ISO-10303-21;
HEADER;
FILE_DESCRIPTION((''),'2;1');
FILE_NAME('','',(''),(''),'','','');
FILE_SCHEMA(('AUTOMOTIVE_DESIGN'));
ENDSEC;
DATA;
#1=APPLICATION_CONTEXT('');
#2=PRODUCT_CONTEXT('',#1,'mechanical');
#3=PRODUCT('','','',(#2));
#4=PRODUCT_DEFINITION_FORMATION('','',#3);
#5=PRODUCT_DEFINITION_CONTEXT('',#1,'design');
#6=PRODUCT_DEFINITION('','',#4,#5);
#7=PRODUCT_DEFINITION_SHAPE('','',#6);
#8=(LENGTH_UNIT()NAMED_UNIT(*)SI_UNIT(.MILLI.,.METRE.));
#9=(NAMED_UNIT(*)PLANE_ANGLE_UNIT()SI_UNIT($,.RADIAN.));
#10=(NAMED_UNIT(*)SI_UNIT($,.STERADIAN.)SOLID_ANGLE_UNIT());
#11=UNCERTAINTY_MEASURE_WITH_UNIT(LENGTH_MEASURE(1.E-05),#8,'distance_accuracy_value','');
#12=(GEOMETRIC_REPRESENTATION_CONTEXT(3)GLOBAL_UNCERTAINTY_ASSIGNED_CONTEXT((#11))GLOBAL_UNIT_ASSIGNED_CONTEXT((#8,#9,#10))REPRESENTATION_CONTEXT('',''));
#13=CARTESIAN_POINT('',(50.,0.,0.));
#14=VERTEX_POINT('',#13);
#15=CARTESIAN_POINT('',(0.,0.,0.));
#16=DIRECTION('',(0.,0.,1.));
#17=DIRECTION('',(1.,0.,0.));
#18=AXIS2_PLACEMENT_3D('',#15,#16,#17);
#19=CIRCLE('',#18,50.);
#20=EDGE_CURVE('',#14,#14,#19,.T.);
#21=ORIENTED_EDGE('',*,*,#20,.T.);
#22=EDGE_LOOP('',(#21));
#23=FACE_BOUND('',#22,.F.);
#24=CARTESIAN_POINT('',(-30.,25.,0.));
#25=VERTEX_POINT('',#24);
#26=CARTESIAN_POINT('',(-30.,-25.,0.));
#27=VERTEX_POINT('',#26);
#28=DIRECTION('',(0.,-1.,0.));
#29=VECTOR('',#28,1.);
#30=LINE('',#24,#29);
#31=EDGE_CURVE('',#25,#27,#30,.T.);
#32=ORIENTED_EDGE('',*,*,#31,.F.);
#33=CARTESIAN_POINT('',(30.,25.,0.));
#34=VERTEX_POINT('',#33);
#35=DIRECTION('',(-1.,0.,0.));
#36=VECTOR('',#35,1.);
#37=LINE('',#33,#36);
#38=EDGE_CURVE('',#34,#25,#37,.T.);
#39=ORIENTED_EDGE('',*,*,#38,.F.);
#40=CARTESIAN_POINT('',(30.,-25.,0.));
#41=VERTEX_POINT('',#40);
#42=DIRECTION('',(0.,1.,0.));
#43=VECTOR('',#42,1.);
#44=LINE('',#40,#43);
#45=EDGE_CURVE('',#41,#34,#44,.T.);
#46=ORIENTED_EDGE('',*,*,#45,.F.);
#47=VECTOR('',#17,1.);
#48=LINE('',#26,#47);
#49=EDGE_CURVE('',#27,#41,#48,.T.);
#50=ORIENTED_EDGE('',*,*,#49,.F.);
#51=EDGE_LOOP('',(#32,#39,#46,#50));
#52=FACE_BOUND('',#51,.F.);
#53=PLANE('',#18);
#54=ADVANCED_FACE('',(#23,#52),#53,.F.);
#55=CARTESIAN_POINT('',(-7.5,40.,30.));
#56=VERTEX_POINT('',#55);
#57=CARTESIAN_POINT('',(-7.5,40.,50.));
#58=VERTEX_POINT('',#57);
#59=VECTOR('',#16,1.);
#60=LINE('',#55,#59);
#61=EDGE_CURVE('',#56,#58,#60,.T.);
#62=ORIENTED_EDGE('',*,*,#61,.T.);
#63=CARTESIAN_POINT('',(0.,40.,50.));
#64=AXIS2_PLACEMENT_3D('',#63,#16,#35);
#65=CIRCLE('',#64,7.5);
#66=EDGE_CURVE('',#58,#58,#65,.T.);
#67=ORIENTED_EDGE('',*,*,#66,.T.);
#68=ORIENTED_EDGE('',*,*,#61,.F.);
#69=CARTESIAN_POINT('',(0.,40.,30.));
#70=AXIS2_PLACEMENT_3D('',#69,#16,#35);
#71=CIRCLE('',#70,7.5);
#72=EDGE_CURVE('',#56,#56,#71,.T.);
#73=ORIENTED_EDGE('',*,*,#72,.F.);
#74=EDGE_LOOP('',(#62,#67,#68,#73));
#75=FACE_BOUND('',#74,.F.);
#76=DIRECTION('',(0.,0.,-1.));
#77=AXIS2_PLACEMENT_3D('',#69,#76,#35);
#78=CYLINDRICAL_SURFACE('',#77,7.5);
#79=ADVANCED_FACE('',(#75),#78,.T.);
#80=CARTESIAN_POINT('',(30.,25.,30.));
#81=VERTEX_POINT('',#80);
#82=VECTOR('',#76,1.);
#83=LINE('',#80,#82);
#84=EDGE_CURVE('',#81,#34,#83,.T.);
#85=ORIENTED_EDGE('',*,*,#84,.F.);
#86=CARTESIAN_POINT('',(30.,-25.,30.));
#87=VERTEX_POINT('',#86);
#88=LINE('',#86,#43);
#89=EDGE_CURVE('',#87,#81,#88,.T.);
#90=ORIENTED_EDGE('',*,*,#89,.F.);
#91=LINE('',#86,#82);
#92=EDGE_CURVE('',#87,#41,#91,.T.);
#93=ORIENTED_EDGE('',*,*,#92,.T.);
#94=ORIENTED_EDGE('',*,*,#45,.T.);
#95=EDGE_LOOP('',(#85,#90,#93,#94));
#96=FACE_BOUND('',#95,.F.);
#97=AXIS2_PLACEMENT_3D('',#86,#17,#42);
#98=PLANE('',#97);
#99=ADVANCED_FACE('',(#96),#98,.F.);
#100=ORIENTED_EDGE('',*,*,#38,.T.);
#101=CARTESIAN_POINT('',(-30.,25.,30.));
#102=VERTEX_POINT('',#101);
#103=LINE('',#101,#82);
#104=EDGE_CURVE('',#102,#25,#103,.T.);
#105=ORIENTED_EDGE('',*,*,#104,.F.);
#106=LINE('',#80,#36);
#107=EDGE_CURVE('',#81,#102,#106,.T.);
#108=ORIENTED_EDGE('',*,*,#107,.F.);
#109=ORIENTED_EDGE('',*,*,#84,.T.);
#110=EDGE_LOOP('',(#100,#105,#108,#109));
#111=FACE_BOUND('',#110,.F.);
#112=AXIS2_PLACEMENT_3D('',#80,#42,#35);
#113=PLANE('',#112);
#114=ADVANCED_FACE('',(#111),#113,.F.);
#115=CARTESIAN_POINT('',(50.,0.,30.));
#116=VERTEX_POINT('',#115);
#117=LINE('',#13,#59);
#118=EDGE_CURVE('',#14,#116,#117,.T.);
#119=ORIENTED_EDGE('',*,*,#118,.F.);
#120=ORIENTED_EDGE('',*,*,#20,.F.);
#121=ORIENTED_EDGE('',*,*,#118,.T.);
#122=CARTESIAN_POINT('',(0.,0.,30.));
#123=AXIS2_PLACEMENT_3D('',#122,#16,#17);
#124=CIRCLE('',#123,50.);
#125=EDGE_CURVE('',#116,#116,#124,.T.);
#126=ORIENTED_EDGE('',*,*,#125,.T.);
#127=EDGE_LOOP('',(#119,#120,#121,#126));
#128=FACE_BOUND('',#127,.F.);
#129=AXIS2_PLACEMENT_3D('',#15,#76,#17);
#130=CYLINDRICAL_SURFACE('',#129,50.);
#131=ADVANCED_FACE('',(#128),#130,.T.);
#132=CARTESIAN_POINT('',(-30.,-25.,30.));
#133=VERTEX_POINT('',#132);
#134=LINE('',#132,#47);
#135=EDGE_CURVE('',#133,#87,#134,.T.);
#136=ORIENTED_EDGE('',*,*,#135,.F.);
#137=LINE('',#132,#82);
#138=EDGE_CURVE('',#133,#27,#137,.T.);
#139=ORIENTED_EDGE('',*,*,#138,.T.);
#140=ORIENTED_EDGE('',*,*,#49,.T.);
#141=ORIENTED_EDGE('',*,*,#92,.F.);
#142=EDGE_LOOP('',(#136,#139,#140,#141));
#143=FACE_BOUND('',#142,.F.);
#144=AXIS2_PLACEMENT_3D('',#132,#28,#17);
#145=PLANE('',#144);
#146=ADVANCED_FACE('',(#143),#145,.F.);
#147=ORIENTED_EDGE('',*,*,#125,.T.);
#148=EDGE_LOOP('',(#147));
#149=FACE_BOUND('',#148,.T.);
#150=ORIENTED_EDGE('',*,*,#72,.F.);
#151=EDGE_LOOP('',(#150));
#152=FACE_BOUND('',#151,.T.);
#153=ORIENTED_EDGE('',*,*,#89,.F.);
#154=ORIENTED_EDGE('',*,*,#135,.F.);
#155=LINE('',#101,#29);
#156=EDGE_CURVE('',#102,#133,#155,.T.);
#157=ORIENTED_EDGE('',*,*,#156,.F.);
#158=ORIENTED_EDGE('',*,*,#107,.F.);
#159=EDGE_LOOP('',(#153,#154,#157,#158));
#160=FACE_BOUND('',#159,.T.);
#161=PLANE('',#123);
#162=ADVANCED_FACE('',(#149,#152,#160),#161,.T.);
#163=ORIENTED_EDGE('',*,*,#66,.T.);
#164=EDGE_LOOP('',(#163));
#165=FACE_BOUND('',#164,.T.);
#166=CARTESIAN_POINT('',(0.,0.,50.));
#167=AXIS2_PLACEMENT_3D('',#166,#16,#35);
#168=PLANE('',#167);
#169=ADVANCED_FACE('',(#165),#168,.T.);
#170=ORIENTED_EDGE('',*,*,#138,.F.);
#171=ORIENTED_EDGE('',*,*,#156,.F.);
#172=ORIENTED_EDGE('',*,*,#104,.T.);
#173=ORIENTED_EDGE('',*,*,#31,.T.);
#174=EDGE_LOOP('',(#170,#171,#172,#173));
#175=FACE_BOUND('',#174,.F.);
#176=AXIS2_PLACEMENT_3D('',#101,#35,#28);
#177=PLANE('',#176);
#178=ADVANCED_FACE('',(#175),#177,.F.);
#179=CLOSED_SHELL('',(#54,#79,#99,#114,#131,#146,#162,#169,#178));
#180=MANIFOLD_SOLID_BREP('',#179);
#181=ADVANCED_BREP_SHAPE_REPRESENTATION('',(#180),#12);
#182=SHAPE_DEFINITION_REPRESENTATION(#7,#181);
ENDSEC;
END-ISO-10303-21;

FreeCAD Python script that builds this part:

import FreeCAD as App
import Part
import Sketcher
from FreeCAD import Vector


def add_polygon(sketch, points):
    """Adds a closed chain of lines whose ends are joined by coincident constraints."""
    first, n = sketch.GeometryCount, len(points)
    for a, b in zip(points, points[1:] + points[:1]):
        sketch.addGeometry(Part.LineSegment(App.Vector(*a, 0), App.Vector(*b, 0)), False)
    for i in range(n):
        sketch.addConstraint(Sketcher.Constraint("Coincident", first + i, 2, first + (i + 1) % n, 1))

doc = App.newDocument("Part")
params = doc.addObject("Spreadsheet::Sheet", "Params")
for row, (alias, value) in enumerate([
    ("sketch1_diameter", "100 mm"),
    ("pad1_length", "30 mm"),
    ("sketch2_width", "60 mm"),
    ("sketch2_height", "50 mm"),
    ("pocket1_length", "30 mm"),
    ("sketch3_diameter", "15 mm"),
    ("pad2_length", "20 mm"),
], start=1):
    params.set(f"A{row}", alias)
    params.set(f"B{row}", "=" + value)
    params.setAlias(f"B{row}", alias)

body = doc.addObject("PartDesign::Body", "Body")

sketch1 = body.newObject("Sketcher::SketchObject", "Sketch")
sketch1.AttachmentSupport = (doc.getObject("XY_Plane"), [""])
sketch1.MapMode = "FlatFace"
sketch1.addGeometry(Part.Circle(Vector(0, 0, 0), Vector(0, 0, 1), 50), False)
sketch1.addConstraint([
    Sketcher.Constraint("Coincident", 0, 3, -1, 1),
    Sketcher.Constraint("Diameter", 0, 100.0),
])
sketch1.setExpression("Constraints[1]", "Params.sketch1_diameter")
pad1 = body.newObject("PartDesign::Pad", "Pad")
pad1.Profile = sketch1
pad1.setExpression("Length", "Params.pad1_length")

sketch2 = body.newObject("Sketcher::SketchObject", "Sketch001")
sketch2.AttachmentSupport = (doc.getObject("XY_Plane"), [""])
sketch2.MapMode = "FlatFace"
sketch2.AttachmentOffset = App.Placement(Vector(0, 0, 30), App.Rotation())
add_polygon(sketch2, [(-30, 25), (-30, -25), (30, -25), (30, 25)])
sketch2.addConstraint([
    Sketcher.Constraint("Vertical", 0),
    Sketcher.Constraint("Horizontal", 1),
    Sketcher.Constraint("Vertical", 2),
    Sketcher.Constraint("Horizontal", 3),
    Sketcher.Constraint("Symmetric", 0, 2, 2, 2, -1, 1),
    Sketcher.Constraint("DistanceX", 1, 1, 1, 2, 60.0),
    Sketcher.Constraint("DistanceY", 0, 2, 0, 1, 50.0),
])
sketch2.setExpression("Constraints[9]", "Params.sketch2_width")
sketch2.setExpression("Constraints[10]", "Params.sketch2_height")
pocket1 = body.newObject("PartDesign::Pocket", "Pocket")
pocket1.Profile = sketch2
pocket1.setExpression("Length", "Params.pocket1_length")

sketch3 = body.newObject("Sketcher::SketchObject", "Sketch002")
sketch3.AttachmentSupport = (doc.getObject("XY_Plane"), [""])
sketch3.MapMode = "FlatFace"
sketch3.AttachmentOffset = App.Placement(Vector(0, 0, 30), App.Rotation())
sketch3.addGeometry(Part.Circle(Vector(0, 40, 0), Vector(0, 0, 1), 8), False)
sketch3.addConstraint([
    Sketcher.Constraint("PointOnObject", 0, 3, -2),
    Sketcher.Constraint("Diameter", 0, 15.0),
    Sketcher.Constraint("DistanceY", -1, 1, 0, 3, 40.0),
])
sketch3.setExpression("Constraints[1]", "Params.sketch3_diameter")
pad2 = body.newObject("PartDesign::Pad", "Pad001")
pad2.Profile = sketch3
pad2.setExpression("Length", "Params.pad2_length")

doc.recompute()
